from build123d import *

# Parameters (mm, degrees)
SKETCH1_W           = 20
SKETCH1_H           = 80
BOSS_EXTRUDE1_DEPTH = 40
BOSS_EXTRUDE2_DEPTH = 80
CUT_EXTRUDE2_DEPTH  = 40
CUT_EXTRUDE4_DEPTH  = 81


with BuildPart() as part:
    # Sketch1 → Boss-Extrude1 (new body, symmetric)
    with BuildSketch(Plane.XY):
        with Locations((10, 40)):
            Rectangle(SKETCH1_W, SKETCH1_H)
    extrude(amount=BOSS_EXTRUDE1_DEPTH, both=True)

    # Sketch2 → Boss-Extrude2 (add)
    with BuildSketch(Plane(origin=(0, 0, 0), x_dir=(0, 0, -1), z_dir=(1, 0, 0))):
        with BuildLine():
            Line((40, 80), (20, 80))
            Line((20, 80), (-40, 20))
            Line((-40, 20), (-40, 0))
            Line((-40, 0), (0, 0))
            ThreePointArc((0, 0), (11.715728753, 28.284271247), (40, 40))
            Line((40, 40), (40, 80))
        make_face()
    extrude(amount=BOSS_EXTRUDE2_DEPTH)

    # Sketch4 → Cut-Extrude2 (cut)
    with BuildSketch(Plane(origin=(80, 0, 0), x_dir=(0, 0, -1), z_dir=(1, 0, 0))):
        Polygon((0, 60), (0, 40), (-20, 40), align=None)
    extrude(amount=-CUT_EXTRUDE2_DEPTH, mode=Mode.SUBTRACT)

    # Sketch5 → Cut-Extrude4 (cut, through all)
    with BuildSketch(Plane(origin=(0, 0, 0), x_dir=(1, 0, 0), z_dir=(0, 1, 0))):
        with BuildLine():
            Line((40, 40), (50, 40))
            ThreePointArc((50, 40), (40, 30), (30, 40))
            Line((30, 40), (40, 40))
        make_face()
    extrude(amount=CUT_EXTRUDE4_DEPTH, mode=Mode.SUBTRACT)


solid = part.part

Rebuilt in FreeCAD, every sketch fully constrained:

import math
import FreeCAD as App
import Part
import Sketcher
from FreeCAD import Vector
Q = App.Units.Quantity


def add_polygon(sketch, points):
    """Adds a closed chain of lines whose ends are joined by coincident constraints."""
    first, n = sketch.GeometryCount, len(points)
    for a, b in zip(points, points[1:] + points[:1]):
        sketch.addGeometry(Part.LineSegment(App.Vector(*a, 0), App.Vector(*b, 0)), False)
    for i in range(n):
        sketch.addConstraint(Sketcher.Constraint("Coincident", first + i, 2, first + (i + 1) % n, 1))

doc = App.newDocument("Part")
body = doc.addObject("PartDesign::Body", "Body")

# Sketch on XY plane
sketch1 = body.newObject("Sketcher::SketchObject", "Sketch")
sketch1.AttachmentSupport = (doc.getObject("XY_Plane"), [""])
sketch1.MapMode = "FlatFace"
add_polygon(sketch1, [(0, 80), (0, 0), (20, 0), (20, 80)])  # lines 0-3
sketch1.addConstraint(Sketcher.Constraint("Vertical", 0))
sketch1.addConstraint(Sketcher.Constraint("Horizontal", 1))
sketch1.addConstraint(Sketcher.Constraint("Vertical", 2))
sketch1.addConstraint(Sketcher.Constraint("Horizontal", 3))
sketch1.addConstraint(Sketcher.Constraint("Coincident", 0, 2, -1, 1))
sketch1.addConstraint(Sketcher.Constraint("DistanceX", 1, 1, 1, 2, Q("20 mm")))
sketch1.addConstraint(Sketcher.Constraint("DistanceY", 0, 2, 0, 1, Q("80 mm")))
pad1 = body.newObject("PartDesign::Pad", "Pad")
pad1.Profile = sketch1
pad1.Length = 80
pad1.Midplane = True

# Sketch on YZ plane
sketch2 = body.newObject("Sketcher::SketchObject", "Sketch001")
sketch2.AttachmentSupport = (doc.getObject("YZ_Plane"), [""])
sketch2.MapMode = "FlatFace"
sketch2.addGeometry(Part.LineSegment(Vector(80, -40, 0), Vector(80, -20, 0)), False)
sketch2.addGeometry(Part.LineSegment(Vector(80, -20, 0), Vector(20, 40, 0)), False)
sketch2.addGeometry(Part.LineSegment(Vector(20, 40, 0), Vector(0, 40, 0)), False)
sketch2.addGeometry(Part.LineSegment(Vector(0, 40, 0), Vector(0, 0, 0)), False)
sketch2.addGeometry(Part.ArcOfCircle(Part.Circle(Vector(0, -40, 0), Vector(0, 0, 1), 40), math.radians(0), math.radians(90)), False)
sketch2.addGeometry(Part.LineSegment(Vector(40, -40, 0), Vector(80, -40, 0)), False)
sketch2.addConstraint(Sketcher.Constraint("Coincident", 0, 2, 1, 1))
sketch2.addConstraint(Sketcher.Constraint("Coincident", 1, 2, 2, 1))
sketch2.addConstraint(Sketcher.Constraint("Coincident", 2, 2, 3, 1))
sketch2.addConstraint(Sketcher.Constraint("Coincident", 3, 2, 4, 2))
sketch2.addConstraint(Sketcher.Constraint("Coincident", 4, 1, 5, 1))
sketch2.addConstraint(Sketcher.Constraint("Coincident", 5, 2, 0, 1))
sketch2.addConstraint(Sketcher.Constraint("Vertical", 0))
sketch2.addConstraint(Sketcher.Constraint("Horizontal", 2))
sketch2.addConstraint(Sketcher.Constraint("Vertical", 3))
sketch2.addConstraint(Sketcher.Constraint("Horizontal", 5))
sketch2.addConstraint(Sketcher.Constraint("Coincident", 3, 2, -1, 1))
sketch2.addConstraint(Sketcher.Constraint("PointOnObject", 4, 3, -2))
sketch2.addConstraint(Sketcher.Constraint("Equal", 2, 0))
sketch2.addConstraint(Sketcher.Constraint("Equal", 5, 3))
sketch2.addConstraint(Sketcher.Constraint("Radius", 4, Q("40 mm")))
sketch2.addConstraint(Sketcher.Constraint("DistanceX", 2, 2, 2, 1, Q("20 mm")))
sketch2.addConstraint(Sketcher.Constraint("DistanceX", 5, 1, 5, 2, Q("40 mm")))
sketch2.addConstraint(Sketcher.Constraint("Angle", 1, Q("135 deg")))
pad2 = body.newObject("PartDesign::Pad", "Pad001")
pad2.Profile = sketch2
pad2.Length = 80

# Sketch on YZ plane
sketch3 = body.newObject("Sketcher::SketchObject", "Sketch002")
sketch3.AttachmentSupport = (doc.getObject("YZ_Plane"), [""])
sketch3.MapMode = "FlatFace"
sketch3.AttachmentOffset = App.Placement(Vector(0, 0, 80), App.Rotation())
add_polygon(sketch3, [(40, 0), (60, 0), (40, 20)])  # lines 0-2
sketch3.addConstraint(Sketcher.Constraint("Horizontal", 0))
sketch3.addConstraint(Sketcher.Constraint("Vertical", 2))
sketch3.addConstraint(Sketcher.Constraint("PointOnObject", 0, 2, -1))
sketch3.addConstraint(Sketcher.Constraint("Equal", 0, 2))
sketch3.addConstraint(Sketcher.Constraint("DistanceX", 0, 1, 0, 2, Q("20 mm")))
sketch3.addConstraint(Sketcher.Constraint("DistanceX", -1, 1, 0, 2, Q("60 mm")))
pocket1 = body.newObject("PartDesign::Pocket", "Pocket")
pocket1.Profile = sketch3
pocket1.Length = 40

# Sketch on XZ plane
sketch4 = body.newObject("Sketcher::SketchObject", "Sketch003")
sketch4.AttachmentSupport = (doc.getObject("XZ_Plane"), [""])
sketch4.MapMode = "FlatFace"
sketch4.addGeometry(Part.ArcOfCircle(Part.Circle(Vector(40, -40, 0), Vector(0, 0, 1), 10), math.radians(0), math.radians(180)), False)
sketch4.addGeometry(Part.LineSegment(Vector(50, -40, 0), Vector(30, -40, 0)), False)
sketch4.addConstraint(Sketcher.Constraint("Coincident", 0, 1, 1, 1))
sketch4.addConstraint(Sketcher.Constraint("Coincident", 1, 2, 0, 2))
sketch4.addConstraint(Sketcher.Constraint("Horizontal", 1))
sketch4.addConstraint(Sketcher.Constraint("Radius", 0, Q("10 mm")))
sketch4.addConstraint(Sketcher.Constraint("DistanceX", -1, 1, 0, 3, Q("40 mm")))
sketch4.addConstraint(Sketcher.Constraint("DistanceY", 0, 3, -1, 1, Q("40 mm")))
sketch4.addConstraint(Sketcher.Constraint("DistanceY", 0, 1, -1, 1, Q("40 mm")))
pocket2 = body.newObject("PartDesign::Pocket", "Pocket001")
pocket2.Profile = sketch4
pocket2.Type = "ThroughAll"

doc.recompute()
